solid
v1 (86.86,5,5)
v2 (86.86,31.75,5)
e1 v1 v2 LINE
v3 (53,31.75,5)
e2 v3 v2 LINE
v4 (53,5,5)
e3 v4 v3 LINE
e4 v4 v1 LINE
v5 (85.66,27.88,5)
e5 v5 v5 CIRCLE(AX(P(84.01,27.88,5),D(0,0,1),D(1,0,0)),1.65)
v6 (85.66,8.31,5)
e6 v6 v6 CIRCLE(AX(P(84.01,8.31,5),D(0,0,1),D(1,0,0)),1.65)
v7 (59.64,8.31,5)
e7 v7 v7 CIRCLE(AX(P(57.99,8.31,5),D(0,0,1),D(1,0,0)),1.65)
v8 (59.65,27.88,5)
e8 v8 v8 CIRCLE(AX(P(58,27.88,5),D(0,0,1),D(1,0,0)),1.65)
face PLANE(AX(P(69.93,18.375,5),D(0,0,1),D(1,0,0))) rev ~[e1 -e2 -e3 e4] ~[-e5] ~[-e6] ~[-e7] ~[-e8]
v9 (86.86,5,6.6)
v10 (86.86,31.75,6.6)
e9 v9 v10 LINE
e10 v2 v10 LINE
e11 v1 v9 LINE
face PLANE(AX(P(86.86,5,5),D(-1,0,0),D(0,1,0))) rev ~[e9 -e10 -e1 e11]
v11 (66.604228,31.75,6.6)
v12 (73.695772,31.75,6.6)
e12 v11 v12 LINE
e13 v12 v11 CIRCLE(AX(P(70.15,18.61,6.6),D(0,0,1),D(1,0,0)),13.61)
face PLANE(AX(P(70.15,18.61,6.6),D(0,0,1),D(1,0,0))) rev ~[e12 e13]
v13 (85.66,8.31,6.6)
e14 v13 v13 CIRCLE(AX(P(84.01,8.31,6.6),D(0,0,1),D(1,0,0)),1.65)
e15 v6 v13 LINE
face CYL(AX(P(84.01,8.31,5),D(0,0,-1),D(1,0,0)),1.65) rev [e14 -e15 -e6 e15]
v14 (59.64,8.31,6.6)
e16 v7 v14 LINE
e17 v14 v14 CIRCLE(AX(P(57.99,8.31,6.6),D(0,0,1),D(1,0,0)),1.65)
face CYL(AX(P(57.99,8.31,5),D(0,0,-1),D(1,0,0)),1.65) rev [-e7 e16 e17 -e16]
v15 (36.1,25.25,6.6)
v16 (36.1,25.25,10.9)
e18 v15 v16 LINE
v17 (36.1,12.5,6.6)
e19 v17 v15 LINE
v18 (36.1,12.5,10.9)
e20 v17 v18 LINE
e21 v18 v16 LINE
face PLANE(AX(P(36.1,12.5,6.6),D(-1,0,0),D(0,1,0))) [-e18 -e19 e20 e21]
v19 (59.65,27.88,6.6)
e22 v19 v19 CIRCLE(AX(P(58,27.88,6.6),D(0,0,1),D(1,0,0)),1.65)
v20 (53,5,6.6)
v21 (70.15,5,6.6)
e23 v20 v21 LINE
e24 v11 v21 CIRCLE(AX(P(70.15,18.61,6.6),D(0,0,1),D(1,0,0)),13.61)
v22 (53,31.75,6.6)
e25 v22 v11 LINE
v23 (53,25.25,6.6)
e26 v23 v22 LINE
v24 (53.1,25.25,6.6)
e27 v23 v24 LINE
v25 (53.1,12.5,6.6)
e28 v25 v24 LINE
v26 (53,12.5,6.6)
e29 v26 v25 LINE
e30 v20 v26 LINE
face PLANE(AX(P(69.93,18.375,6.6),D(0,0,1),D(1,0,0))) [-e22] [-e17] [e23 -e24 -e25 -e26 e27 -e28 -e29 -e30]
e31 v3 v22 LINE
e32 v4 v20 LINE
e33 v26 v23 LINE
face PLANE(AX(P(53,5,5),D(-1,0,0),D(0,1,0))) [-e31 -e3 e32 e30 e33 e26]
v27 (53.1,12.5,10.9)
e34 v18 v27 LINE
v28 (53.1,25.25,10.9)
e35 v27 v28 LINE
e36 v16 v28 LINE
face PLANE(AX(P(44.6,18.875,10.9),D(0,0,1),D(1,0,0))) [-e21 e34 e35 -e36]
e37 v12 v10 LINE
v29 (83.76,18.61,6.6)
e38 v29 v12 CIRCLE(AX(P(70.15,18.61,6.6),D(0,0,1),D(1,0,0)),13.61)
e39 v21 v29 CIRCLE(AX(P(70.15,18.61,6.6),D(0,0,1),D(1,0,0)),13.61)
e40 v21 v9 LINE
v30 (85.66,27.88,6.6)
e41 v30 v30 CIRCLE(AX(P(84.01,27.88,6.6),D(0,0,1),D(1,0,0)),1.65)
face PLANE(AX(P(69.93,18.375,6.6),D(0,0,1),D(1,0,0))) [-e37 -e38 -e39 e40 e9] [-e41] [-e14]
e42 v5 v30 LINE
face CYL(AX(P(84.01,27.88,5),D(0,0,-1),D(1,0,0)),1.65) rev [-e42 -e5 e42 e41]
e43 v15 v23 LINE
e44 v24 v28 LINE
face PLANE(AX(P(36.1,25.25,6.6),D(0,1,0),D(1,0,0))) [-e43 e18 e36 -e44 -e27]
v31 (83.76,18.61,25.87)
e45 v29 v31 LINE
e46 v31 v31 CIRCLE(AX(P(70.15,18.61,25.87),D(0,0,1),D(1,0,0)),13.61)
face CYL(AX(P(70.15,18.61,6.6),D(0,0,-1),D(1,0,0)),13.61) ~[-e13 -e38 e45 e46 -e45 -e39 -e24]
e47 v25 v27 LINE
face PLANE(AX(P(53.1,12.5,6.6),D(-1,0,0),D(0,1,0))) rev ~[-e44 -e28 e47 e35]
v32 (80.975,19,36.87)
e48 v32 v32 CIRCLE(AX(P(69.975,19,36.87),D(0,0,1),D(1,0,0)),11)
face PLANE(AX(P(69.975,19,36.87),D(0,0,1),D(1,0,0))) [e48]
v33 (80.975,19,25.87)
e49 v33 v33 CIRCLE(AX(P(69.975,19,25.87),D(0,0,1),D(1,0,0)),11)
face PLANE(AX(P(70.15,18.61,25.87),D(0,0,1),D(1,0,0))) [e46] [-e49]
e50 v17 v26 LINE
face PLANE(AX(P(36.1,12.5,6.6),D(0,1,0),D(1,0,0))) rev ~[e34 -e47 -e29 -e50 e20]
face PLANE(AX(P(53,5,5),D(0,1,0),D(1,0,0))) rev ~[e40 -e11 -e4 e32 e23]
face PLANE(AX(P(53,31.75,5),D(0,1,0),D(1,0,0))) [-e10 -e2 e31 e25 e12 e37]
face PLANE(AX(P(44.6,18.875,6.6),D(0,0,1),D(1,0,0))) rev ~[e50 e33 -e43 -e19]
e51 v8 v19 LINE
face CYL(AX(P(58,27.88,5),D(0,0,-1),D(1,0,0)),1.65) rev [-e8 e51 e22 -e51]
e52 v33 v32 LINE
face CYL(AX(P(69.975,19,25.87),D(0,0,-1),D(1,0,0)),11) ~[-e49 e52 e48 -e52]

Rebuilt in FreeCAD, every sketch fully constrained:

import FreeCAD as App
import Part
import Sketcher
from FreeCAD import Vector


def add_polygon(sketch, points):
    """Adds a closed chain of lines whose ends are joined by coincident constraints."""
    first, n = sketch.GeometryCount, len(points)
    for a, b in zip(points, points[1:] + points[:1]):
        sketch.addGeometry(Part.LineSegment(App.Vector(*a, 0), App.Vector(*b, 0)), False)
    for i in range(n):
        sketch.addConstraint(Sketcher.Constraint("Coincident", first + i, 2, first + (i + 1) % n, 1))

doc = App.newDocument("Part")
body = doc.addObject("PartDesign::Body", "Body")

sketch1 = body.newObject("Sketcher::SketchObject", "Sketch")
sketch1.AttachmentSupport = (doc.getObject("XY_Plane"), [""])
sketch1.MapMode = "FlatFace"
sketch1.addGeometry(Part.Circle(Vector(16.975, 14, 0), Vector(0, 0, 1), 11), False)
sketch1.addConstraint(Sketcher.Constraint("Diameter", 0, 22.0))
sketch1.addConstraint(Sketcher.Constraint("DistanceY", -1, 1, 0, 3, 14.0))
sketch1.addConstraint(Sketcher.Constraint("DistanceX", -1, 1, 0, 3, 16.975))
pad1 = body.newObject("PartDesign::Pad", "Pad")
pad1.Profile = sketch1
pad1.Length = 11
body2 = doc.addObject("PartDesign::Body", "Body001")
doc.recompute()

body.Placement = App.Placement(Vector(0, 0, 20.87), App.Rotation(Vector(0, 0, 1), 0))
boolean = body2.newObject("PartDesign::Boolean", "Boolean")
boolean.Type = "Fuse"
boolean.addObjects([body])
body3 = doc.addObject("PartDesign::Body", "Body002")

sketch2 = body3.newObject("Sketcher::SketchObject", "Sketch001")
sketch2.AttachmentSupport = (doc.getObject("XY_Plane002"), [""])
sketch2.MapMode = "FlatFace"
add_polygon(sketch2, [(0, 26.75), (0, 0), (33.86, 0), (33.86, 26.75)])
sketch2.addGeometry(Part.Circle(Vector(4.99, 3.31, 0), Vector(0, 0, 1), 1.65), False)
sketch2.addGeometry(Part.Circle(Vector(31.01, 3.31, 0), Vector(0, 0, 1), 1.65), False)
sketch2.addGeometry(Part.Circle(Vector(5, 22.88, 0), Vector(0, 0, 1), 1.65), False)
sketch2.addGeometry(Part.Circle(Vector(31.01, 22.88, 0), Vector(0, 0, 1), 1.65), False)
sketch2.addConstraint(Sketcher.Constraint("Vertical", 0))
sketch2.addConstraint(Sketcher.Constraint("Horizontal", 1))
sketch2.addConstraint(Sketcher.Constraint("Vertical", 2))
sketch2.addConstraint(Sketcher.Constraint("Horizontal", 3))
sketch2.addConstraint(Sketcher.Constraint("Coincident", 0, 2, -1, 1))
sketch2.addConstraint(Sketcher.Constraint("Equal", 4, 5))
sketch2.addConstraint(Sketcher.Constraint("Equal", 5, 6))
sketch2.addConstraint(Sketcher.Constraint("Equal", 6, 7))
sketch2.addConstraint(Sketcher.Constraint("Horizontal", 4, 3, 5, 3))
sketch2.addConstraint(Sketcher.Constraint("Horizontal", 6, 3, 7, 3))
sketch2.addConstraint(Sketcher.Constraint("Vertical", 5, 3, 7, 3))
sketch2.addConstraint(Sketcher.Constraint("Diameter", 4, 3.3))
sketch2.addConstraint(Sketcher.Constraint("DistanceX", -1, 1, 6, 3, 5.0))
sketch2.addConstraint(Sketcher.Constraint("DistanceX", 1, 1, 1, 2, 33.86))
sketch2.addConstraint(Sketcher.Constraint("DistanceY", 0, 2, 0, 1, 26.75))
sketch2.addConstraint(Sketcher.Constraint("DistanceX", -1, 1, 4, 3, 4.99))
sketch2.addConstraint(Sketcher.Constraint("DistanceY", -1, 1, 4, 3, 3.31))
sketch2.addConstraint(Sketcher.Constraint("DistanceX", -1, 1, 5, 3, 31.01))
sketch2.addConstraint(Sketcher.Constraint("DistanceY", -1, 1, 6, 3, 22.88))
pad2 = body3.newObject("PartDesign::Pad", "Pad001")
pad2.Profile = sketch2
pad2.Length = 1.6
body4 = doc.addObject("PartDesign::Body", "Body003")

sketch3 = body4.newObject("Sketcher::SketchObject", "Sketch002")
sketch3.AttachmentSupport = (doc.getObject("XY_Plane003"), [""])
sketch3.MapMode = "FlatFace"
add_polygon(sketch3, [(-17, 20.25), (-17, 7.5), (0, 7.5), (0, 20.25)])
sketch3.addConstraint(Sketcher.Constraint("Vertical", 0))
sketch3.addConstraint(Sketcher.Constraint("Horizontal", 1))
sketch3.addConstraint(Sketcher.Constraint("Vertical", 2))
sketch3.addConstraint(Sketcher.Constraint("Horizontal", 3))
sketch3.addConstraint(Sketcher.Constraint("PointOnObject", 1, 2, -2))
sketch3.addConstraint(Sketcher.Constraint("DistanceX", 1, 1, 1, 2, 17.0))
sketch3.addConstraint(Sketcher.Constraint("DistanceY", 0, 2, 0, 1, 12.75))
sketch3.addConstraint(Sketcher.Constraint("DistanceY", -1, 1, 0, 2, 7.5))
pad3 = body4.newObject("PartDesign::Pad", "Pad002")
pad3.Profile = sketch3
pad3.Length = 4.3
body5 = doc.addObject("PartDesign::Body", "Body004")
doc.recompute()

body4.Placement = App.Placement(Vector(0.1, 0, 1.6), App.Rotation(Vector(0, 0, 1), 0))
boolean2 = body5.newObject("PartDesign::Boolean", "Boolean001")
boolean2.Type = "Fuse"
boolean2.addObjects([body4])
body6 = doc.addObject("PartDesign::Body", "Body005")

sketch4 = body6.newObject("Sketcher::SketchObject", "Sketch003")
sketch4.AttachmentSupport = (doc.getObject("XY_Plane005"), [""])
sketch4.MapMode = "FlatFace"
sketch4.addGeometry(Part.Circle(Vector(17.15, 13.61, 0), Vector(0, 0, 1), 13.61), False)
sketch4.addConstraint(Sketcher.Constraint("Diameter", 0, 27.22))
sketch4.addConstraint(Sketcher.Constraint("DistanceX", -1, 1, 0, 3, 17.15))
sketch4.addConstraint(Sketcher.Constraint("DistanceY", -1, 1, 0, 3, 13.61))
pad4 = body6.newObject("PartDesign::Pad", "Pad003")
pad4.Profile = sketch4
pad4.Length = 19.27
body7 = doc.addObject("PartDesign::Body", "Body006")
doc.recompute()

body6.Placement = App.Placement(Vector(0, 0, 1.6), App.Rotation(Vector(0, 0, 1), 0))
boolean3 = body7.newObject("PartDesign::Boolean", "Boolean002")
boolean3.Type = "Fuse"
boolean3.addObjects([body6])
doc.recompute()

boolean4 = body7.newObject("PartDesign::Boolean", "Boolean003")
boolean4.Type = "Fuse"
boolean4.addObjects([body2])
doc.recompute()

boolean5 = body7.newObject("PartDesign::Boolean", "Boolean004")
boolean5.Type = "Fuse"
boolean5.addObjects([body3])
doc.recompute()

boolean6 = body7.newObject("PartDesign::Boolean", "Boolean005")
boolean6.Type = "Fuse"
boolean6.addObjects([body5])
body8 = doc.addObject("PartDesign::Body", "Body007")
doc.recompute()

body7.Placement = App.Placement(Vector(53, 5, 5), App.Rotation(Vector(0, 0, 1), 0))
boolean7 = body8.newObject("PartDesign::Boolean", "Boolean006")
boolean7.Type = "Fuse"
boolean7.addObjects([body7])

doc.recompute()
